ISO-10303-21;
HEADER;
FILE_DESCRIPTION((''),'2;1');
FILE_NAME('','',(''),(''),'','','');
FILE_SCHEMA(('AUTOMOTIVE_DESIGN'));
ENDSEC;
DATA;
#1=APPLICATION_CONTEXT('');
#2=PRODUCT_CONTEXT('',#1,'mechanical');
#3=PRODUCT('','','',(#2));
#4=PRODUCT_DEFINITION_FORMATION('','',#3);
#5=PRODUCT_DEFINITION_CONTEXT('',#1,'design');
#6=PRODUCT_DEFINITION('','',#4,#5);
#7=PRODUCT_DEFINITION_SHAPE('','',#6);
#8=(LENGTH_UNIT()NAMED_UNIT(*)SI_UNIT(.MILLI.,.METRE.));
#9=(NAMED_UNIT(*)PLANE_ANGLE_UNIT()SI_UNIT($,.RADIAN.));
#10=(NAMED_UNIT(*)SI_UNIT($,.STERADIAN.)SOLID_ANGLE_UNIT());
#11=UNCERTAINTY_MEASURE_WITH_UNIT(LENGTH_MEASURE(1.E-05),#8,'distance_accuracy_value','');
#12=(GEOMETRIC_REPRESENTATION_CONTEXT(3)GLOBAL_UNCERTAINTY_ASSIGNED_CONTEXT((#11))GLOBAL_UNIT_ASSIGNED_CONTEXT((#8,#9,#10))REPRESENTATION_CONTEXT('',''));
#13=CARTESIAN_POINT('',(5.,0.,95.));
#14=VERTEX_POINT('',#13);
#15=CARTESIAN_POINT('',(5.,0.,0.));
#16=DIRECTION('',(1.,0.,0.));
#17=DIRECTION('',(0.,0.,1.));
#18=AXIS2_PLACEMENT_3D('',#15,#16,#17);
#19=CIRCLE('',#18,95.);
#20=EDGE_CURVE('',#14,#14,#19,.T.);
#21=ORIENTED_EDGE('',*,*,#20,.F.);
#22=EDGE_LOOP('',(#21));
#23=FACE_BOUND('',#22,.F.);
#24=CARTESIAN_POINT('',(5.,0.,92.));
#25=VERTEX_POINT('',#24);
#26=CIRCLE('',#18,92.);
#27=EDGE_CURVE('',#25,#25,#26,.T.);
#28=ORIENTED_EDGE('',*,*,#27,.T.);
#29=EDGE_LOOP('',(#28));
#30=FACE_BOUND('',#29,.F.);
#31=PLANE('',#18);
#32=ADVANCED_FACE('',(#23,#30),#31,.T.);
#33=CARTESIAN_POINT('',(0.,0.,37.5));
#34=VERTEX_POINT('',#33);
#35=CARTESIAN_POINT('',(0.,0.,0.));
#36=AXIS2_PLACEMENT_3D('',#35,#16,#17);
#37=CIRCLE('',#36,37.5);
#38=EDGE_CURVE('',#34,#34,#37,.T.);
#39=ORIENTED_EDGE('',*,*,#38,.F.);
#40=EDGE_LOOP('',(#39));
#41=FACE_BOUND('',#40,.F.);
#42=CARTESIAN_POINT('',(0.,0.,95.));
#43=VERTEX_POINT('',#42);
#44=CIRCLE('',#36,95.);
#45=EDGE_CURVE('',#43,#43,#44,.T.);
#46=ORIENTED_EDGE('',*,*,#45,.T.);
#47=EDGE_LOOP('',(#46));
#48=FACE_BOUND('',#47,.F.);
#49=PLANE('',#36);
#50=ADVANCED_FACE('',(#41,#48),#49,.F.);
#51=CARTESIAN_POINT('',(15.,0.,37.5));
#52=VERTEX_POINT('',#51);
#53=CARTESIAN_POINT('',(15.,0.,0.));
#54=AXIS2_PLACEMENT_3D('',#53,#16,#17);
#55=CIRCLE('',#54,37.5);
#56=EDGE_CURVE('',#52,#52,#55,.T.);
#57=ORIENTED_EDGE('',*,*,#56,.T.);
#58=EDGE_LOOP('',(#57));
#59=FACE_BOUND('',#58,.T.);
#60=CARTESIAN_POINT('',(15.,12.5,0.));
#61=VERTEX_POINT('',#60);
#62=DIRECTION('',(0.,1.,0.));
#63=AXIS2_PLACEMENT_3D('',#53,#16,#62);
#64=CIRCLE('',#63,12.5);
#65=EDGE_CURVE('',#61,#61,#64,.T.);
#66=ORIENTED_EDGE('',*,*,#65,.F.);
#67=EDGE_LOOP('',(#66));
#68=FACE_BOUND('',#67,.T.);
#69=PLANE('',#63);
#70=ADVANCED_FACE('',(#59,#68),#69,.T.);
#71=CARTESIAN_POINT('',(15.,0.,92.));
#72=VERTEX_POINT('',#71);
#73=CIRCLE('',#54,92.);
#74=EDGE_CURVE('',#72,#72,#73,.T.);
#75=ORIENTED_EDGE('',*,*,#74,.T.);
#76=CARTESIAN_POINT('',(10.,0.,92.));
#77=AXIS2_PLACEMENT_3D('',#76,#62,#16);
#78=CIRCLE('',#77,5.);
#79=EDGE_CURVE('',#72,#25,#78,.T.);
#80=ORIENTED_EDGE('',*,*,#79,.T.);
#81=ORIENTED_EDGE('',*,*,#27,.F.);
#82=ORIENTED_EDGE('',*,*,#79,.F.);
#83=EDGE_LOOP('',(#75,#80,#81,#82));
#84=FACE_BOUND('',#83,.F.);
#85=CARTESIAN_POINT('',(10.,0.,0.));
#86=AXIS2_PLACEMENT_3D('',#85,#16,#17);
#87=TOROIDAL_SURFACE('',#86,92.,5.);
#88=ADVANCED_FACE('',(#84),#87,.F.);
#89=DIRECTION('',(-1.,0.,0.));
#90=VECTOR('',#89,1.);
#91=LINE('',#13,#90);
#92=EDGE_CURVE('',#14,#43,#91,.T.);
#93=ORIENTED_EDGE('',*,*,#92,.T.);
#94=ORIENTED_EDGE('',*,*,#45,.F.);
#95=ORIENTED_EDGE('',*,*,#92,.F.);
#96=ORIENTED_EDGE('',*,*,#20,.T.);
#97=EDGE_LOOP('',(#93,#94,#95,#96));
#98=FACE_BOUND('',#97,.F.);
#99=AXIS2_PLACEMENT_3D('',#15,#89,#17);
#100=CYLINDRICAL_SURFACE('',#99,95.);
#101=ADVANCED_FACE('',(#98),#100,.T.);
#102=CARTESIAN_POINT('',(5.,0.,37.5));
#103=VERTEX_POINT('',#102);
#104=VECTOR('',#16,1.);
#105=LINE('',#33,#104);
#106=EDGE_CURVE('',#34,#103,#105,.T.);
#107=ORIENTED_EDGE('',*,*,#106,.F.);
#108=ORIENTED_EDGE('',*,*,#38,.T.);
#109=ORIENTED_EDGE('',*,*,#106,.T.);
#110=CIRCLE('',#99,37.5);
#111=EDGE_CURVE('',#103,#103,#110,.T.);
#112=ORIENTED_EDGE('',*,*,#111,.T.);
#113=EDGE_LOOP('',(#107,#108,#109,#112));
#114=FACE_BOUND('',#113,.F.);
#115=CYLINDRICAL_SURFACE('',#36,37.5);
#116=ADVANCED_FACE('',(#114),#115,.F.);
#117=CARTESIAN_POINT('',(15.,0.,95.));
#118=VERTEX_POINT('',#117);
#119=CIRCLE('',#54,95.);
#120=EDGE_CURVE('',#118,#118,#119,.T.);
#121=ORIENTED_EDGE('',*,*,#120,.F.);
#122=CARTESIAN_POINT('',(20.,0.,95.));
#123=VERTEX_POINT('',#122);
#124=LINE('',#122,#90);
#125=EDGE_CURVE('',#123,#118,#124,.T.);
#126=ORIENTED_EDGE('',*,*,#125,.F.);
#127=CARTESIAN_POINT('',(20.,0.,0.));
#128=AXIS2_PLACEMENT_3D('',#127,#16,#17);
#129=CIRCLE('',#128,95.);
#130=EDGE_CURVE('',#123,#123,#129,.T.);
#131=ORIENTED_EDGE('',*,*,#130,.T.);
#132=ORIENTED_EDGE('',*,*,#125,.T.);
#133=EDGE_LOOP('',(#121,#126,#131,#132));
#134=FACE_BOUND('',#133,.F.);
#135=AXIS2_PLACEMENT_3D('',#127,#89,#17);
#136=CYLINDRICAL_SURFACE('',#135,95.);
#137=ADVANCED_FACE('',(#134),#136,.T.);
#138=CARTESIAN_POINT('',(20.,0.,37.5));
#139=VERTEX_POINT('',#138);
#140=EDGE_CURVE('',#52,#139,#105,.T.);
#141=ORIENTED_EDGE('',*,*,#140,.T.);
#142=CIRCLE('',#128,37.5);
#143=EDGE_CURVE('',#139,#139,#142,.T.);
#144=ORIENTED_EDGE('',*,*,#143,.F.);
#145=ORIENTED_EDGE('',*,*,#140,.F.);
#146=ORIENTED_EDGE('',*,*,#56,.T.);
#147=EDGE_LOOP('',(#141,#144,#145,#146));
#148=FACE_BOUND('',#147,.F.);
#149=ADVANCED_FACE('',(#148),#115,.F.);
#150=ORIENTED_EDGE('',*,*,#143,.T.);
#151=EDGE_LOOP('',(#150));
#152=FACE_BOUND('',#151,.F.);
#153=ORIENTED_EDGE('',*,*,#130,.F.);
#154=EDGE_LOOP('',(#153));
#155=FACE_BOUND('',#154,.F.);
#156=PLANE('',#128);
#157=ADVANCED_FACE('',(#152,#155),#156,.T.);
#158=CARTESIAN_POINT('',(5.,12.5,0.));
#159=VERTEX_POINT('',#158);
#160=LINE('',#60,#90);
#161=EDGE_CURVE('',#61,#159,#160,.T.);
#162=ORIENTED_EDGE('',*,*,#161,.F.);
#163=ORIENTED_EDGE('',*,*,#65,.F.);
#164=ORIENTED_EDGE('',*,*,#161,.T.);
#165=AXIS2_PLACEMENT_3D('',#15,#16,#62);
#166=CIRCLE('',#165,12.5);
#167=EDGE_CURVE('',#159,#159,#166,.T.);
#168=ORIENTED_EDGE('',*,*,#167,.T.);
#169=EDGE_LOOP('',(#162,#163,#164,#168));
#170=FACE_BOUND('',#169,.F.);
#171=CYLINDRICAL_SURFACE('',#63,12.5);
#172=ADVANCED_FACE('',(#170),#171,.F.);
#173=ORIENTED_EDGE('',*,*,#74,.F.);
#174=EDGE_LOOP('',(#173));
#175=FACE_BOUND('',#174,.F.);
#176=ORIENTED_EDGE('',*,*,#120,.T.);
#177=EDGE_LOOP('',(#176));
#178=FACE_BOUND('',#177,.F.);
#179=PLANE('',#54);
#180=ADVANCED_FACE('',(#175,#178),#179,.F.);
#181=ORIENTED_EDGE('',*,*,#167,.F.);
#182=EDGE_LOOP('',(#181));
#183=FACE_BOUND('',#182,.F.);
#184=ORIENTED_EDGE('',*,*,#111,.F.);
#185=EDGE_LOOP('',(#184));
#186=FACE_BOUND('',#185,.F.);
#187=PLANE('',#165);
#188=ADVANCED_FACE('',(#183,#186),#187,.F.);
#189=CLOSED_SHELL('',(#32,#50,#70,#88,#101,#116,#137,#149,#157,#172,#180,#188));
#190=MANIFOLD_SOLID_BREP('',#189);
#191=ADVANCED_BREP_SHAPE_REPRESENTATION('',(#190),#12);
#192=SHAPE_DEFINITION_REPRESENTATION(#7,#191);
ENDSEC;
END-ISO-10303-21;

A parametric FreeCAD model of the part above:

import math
import FreeCAD as App
import Part
import Sketcher

V = App.Vector
Q = App.Units.Quantity

doc = App.newDocument("Part")
params = doc.addObject("Spreadsheet::Sheet", "Params")
for row, (alias, value) in enumerate([
    ("sketch1_radius", "5 mm"),
    ("sketch1_width", "20 mm"),
    ("sketch1_height", "3 mm"),
    ("sketch1_height2", "57.5 mm"),
    ("revolution_angle", "360 deg"),
    ("sketch2_diameter", "75 mm"),
    ("sketch2_diameter2", "25 mm"),
    ("pad1_length", "10 mm"),
], start=1):
    params.set(f"A{row}", alias)
    params.set(f"B{row}", "=" + value)
    params.setAlias(f"B{row}", alias)

body = doc.addObject("PartDesign::Body", "Body")

# Sketch on XZ plane
sketch1 = body.newObject("Sketcher::SketchObject", "Sketch")
sketch1.AttachmentSupport = (doc.getObject("XZ_Plane"), [""])
sketch1.MapMode = "FlatFace"
sketch1.addGeometry([
    Part.LineSegment(V(0, 95, 0), V(0, 37.5, 0)),  # 0
    Part.LineSegment(V(0, 37.5, 0), V(20, 37.5, 0)),  # 1
    Part.LineSegment(V(20, 37.5, 0), V(20, 95, 0)),  # 2
    Part.LineSegment(V(20, 95, 0), V(15, 95, 0)),  # 3
    Part.LineSegment(V(15, 95, 0), V(15, 92, 0)),  # 4
    Part.ArcOfCircle(Part.Circle(V(10, 92, 0), V(0, 0, 1), 5), math.radians(180), math.radians(360)),  # 5
    Part.LineSegment(V(5, 92, 0), V(5, 95, 0)),  # 6
    Part.LineSegment(V(5, 95, 0), V(0, 95, 0)),  # 7
], False)
sketch1.addConstraint([
    Sketcher.Constraint("Coincident", 0, 2, 1, 1),
    Sketcher.Constraint("Coincident", 1, 2, 2, 1),
    Sketcher.Constraint("Coincident", 2, 2, 3, 1),
    Sketcher.Constraint("Coincident", 3, 2, 4, 1),
    Sketcher.Constraint("Tangent", 4, 2, 5, 2),
    Sketcher.Constraint("Tangent", 5, 1, 6, 1),
    Sketcher.Constraint("Coincident", 6, 2, 7, 1),
    Sketcher.Constraint("Coincident", 7, 2, 0, 1),
    Sketcher.Constraint("Vertical", 0),
    Sketcher.Constraint("Horizontal", 1),
    Sketcher.Constraint("Vertical", 2),
    Sketcher.Constraint("Horizontal", 3),
    Sketcher.Constraint("Vertical", 4),
    Sketcher.Constraint("Vertical", 6),
    Sketcher.Constraint("Horizontal", 7),
    Sketcher.Constraint("PointOnObject", 0, 2, -2),
    Sketcher.Constraint("Horizontal", 3, 2, 6, 2),
    Sketcher.Constraint("Equal", 3, 7),
    Sketcher.Constraint("Radius", 5, Q("5 mm")),
    Sketcher.Constraint("DistanceX", 1, 1, 1, 2, Q("20 mm")),
    Sketcher.Constraint("DistanceY", 4, 2, 4, 1, Q("3 mm")),
    Sketcher.Constraint("DistanceY", 0, 2, 0, 1, Q("57.5 mm")),
    Sketcher.Constraint("DistanceY", -1, 1, 5, 3, Q("92 mm")),
])
sketch1.setExpression("Constraints[18]", "Params.sketch1_radius")
sketch1.setExpression("Constraints[19]", "Params.sketch1_width")
sketch1.setExpression("Constraints[20]", "Params.sketch1_height")
sketch1.setExpression("Constraints[21]", "Params.sketch1_height2")
revolution = body.newObject("PartDesign::Revolution", "Revolution")
revolution.Profile = sketch1
revolution.ReferenceAxis = (sketch1, ["H_Axis"])
revolution.setExpression("Angle", "Params.revolution_angle")

# Sketch on YZ plane
sketch2 = body.newObject("Sketcher::SketchObject", "Sketch001")
sketch2.AttachmentSupport = (doc.getObject("YZ_Plane"), [""])
sketch2.MapMode = "FlatFace"
sketch2.AttachmentOffset = App.Placement(V(0, 0, 15), App.Rotation())
sketch2.addGeometry([
    Part.Circle(V(0, 0, 0), V(0, 0, 1), 38),
    Part.Circle(V(0, 0, 0), V(0, 0, 1), 12),
], False)
sketch2.addConstraint([
    Sketcher.Constraint("Coincident", 0, 3, -1, 1),
    Sketcher.Constraint("Coincident", 1, 3, -1, 1),
    Sketcher.Constraint("Diameter", 0, Q("75 mm")),
    Sketcher.Constraint("Diameter", 1, Q("25 mm")),
])
sketch2.setExpression("Constraints[2]", "Params.sketch2_diameter")
sketch2.setExpression("Constraints[3]", "Params.sketch2_diameter2")
pad1 = body.newObject("PartDesign::Pad", "Pad")
pad1.Profile = sketch2
pad1.setExpression("Length", "Params.pad1_length")
pad1.Reversed = True

doc.recompute()
